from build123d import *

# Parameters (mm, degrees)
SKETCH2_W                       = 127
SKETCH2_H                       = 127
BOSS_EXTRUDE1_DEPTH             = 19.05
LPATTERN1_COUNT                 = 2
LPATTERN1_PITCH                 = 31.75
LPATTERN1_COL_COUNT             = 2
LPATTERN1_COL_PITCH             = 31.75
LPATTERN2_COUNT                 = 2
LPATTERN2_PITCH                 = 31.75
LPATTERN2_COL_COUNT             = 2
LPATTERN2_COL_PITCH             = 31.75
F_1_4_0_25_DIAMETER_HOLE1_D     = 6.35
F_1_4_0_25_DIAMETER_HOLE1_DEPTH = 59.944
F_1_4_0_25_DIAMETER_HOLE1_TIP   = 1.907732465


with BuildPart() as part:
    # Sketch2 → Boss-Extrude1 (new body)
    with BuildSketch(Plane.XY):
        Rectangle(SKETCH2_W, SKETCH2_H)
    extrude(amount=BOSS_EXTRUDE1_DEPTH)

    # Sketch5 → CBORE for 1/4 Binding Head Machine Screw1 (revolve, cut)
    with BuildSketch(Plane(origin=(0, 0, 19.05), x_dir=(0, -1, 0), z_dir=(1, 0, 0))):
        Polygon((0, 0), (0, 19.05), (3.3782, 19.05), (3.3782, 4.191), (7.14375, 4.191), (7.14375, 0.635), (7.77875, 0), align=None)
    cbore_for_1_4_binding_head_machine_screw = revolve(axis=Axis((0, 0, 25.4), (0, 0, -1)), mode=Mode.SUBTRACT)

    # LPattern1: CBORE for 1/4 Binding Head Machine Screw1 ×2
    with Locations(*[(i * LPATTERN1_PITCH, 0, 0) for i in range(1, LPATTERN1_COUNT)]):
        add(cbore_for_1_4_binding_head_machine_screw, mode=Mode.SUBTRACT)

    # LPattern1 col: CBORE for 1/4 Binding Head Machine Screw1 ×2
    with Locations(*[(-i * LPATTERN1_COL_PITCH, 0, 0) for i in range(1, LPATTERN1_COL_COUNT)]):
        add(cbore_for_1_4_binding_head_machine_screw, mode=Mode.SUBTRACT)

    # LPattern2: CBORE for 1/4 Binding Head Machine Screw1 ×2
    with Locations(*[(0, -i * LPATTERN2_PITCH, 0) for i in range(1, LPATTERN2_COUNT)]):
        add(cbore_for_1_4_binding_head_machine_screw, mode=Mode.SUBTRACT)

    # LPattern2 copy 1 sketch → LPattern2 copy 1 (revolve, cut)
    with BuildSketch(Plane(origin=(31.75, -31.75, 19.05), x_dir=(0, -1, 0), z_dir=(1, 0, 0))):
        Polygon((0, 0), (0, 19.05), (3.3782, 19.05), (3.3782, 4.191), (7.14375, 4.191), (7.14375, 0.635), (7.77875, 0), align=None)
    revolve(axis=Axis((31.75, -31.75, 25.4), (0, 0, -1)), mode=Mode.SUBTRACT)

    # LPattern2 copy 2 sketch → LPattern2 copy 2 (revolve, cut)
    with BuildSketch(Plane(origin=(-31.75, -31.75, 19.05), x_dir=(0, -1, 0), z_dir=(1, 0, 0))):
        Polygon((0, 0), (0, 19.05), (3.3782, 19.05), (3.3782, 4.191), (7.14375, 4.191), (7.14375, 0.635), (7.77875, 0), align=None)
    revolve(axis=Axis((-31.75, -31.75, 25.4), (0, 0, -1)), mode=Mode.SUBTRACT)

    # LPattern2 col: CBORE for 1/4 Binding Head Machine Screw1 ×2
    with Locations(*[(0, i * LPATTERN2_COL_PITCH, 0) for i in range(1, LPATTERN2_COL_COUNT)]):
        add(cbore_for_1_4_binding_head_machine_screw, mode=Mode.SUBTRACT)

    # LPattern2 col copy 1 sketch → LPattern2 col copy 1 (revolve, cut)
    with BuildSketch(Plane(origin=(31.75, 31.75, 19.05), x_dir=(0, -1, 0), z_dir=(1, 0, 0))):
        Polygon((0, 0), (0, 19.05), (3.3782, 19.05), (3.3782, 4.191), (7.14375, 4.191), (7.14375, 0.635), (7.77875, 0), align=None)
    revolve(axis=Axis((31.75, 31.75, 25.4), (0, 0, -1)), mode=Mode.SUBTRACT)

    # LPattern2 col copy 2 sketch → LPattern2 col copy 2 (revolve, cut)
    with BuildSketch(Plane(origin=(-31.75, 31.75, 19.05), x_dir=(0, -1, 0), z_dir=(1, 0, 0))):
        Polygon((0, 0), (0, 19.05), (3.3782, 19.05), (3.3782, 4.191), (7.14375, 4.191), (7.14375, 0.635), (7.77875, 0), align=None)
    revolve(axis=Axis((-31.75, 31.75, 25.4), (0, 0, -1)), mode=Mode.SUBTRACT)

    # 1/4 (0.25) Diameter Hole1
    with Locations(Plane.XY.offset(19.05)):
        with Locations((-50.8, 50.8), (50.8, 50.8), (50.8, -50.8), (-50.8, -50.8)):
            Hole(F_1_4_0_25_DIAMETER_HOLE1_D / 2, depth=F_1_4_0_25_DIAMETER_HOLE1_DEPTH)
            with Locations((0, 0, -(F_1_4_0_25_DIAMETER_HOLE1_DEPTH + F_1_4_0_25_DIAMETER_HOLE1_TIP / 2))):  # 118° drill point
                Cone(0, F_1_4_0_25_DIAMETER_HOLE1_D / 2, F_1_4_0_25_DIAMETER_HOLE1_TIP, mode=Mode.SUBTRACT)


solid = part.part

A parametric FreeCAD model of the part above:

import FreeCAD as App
import Part
import Sketcher
Q = App.Units.Quantity

doc = App.newDocument("Part")
body = doc.addObject("PartDesign::Body", "Body")

sketch1 = body.newObject("Sketcher::SketchObject", "Sketch")
sketch1.AttachmentSupport = (doc.getObject("XY_Plane"), [""])
sketch1.MapMode = "FlatFace"
sketch1.addGeometry([
    Part.LineSegment(App.Vector(-64, 64, 0), App.Vector(-64, -64, 0)),
    Part.LineSegment(App.Vector(-64, -64, 0), App.Vector(64, -64, 0)),
    Part.LineSegment(App.Vector(64, -64, 0), App.Vector(64, 64, 0)),
    Part.LineSegment(App.Vector(64, 64, 0), App.Vector(-64, 64, 0)),
], False)
sketch1.addConstraint([
    Sketcher.Constraint("Coincident", 0, 2, 1, 1),
    Sketcher.Constraint("Coincident", 1, 2, 2, 1),
    Sketcher.Constraint("Coincident", 2, 2, 3, 1),
    Sketcher.Constraint("Coincident", 3, 2, 0, 1),
    Sketcher.Constraint("Vertical", 0),
    Sketcher.Constraint("Horizontal", 1),
    Sketcher.Constraint("Vertical", 2),
    Sketcher.Constraint("Horizontal", 3),
    Sketcher.Constraint("Symmetric", 0, 2, 2, 2, -1, 1),
    Sketcher.Constraint("Equal", 3, 0),
    Sketcher.Constraint("DistanceX", 1, 1, 1, 2, Q("5 in")),
])
pad1 = body.newObject("PartDesign::Pad", "Pad")
pad1.Profile = sketch1
pad1.Length = Q("0.75 in")

sketch2 = body.newObject("Sketcher::SketchObject", "Sketch001")
sketch2.AttachmentSupport = (doc.getObject("YZ_Plane"), [""])
sketch2.MapMode = "FlatFace"
sketch2.addGeometry([
    Part.LineSegment(App.Vector(0, 0, 0), App.Vector(0, 19.1, 0)),
    Part.LineSegment(App.Vector(0, 19.1, 0), App.Vector(-7.8, 19.1, 0)),
    Part.LineSegment(App.Vector(-7.8, 19.1, 0), App.Vector(-7.1, 18.4, 0)),
    Part.LineSegment(App.Vector(-7.1, 18.4, 0), App.Vector(-7.1, 14.9, 0)),
    Part.LineSegment(App.Vector(-7.1, 14.9, 0), App.Vector(-3.4, 14.9, 0)),
    Part.LineSegment(App.Vector(-3.4, 14.9, 0), App.Vector(-3.4, 0, 0)),
    Part.LineSegment(App.Vector(-3.4, 0, 0), App.Vector(0, 0, 0)),
], False)
sketch2.addConstraint([
    Sketcher.Constraint("Coincident", 0, 2, 1, 1),
    Sketcher.Constraint("Coincident", 1, 2, 2, 1),
    Sketcher.Constraint("Coincident", 2, 2, 3, 1),
    Sketcher.Constraint("Coincident", 3, 2, 4, 1),
    Sketcher.Constraint("Coincident", 4, 2, 5, 1),
    Sketcher.Constraint("Coincident", 5, 2, 6, 1),
    Sketcher.Constraint("Coincident", 6, 2, 0, 1),
    Sketcher.Constraint("Vertical", 0),
    Sketcher.Constraint("Horizontal", 1),
    Sketcher.Constraint("Vertical", 3),
    Sketcher.Constraint("Horizontal", 4),
    Sketcher.Constraint("Vertical", 5),
    Sketcher.Constraint("Horizontal", 6),
    Sketcher.Constraint("Coincident", 6, 2, -1, 1),
    Sketcher.Constraint("Angle", 2, Q("-45 deg")),
    Sketcher.Constraint("DistanceY", 0, 1, 0, 2, Q("0.75 in")),
    Sketcher.Constraint("DistanceY", 3, 2, 3, 1, Q("0.14 in")),
    Sketcher.Constraint("DistanceX", 6, 1, 6, 2, Q("0.133 in")),
    Sketcher.Constraint("DistanceY", 5, 2, 5, 1, Q("0.585 in")),
    Sketcher.Constraint("DistanceX", 2, 2, -1, 1, Q("0.28125 in")),
])
groove = body.newObject("PartDesign::Groove", "Groove")
groove.Profile = sketch2
groove.ReferenceAxis = (sketch2, ["V_Axis"])
groove.Angle = 360
doc.recompute()

linearpattern = body.newObject("PartDesign::LinearPattern", "LinearPattern")
linearpattern.Originals = [groove]
linearpattern.Direction = (doc.getObject("X_Axis"), [""])
linearpattern.Mode = "offset"
linearpattern.Offset = Q("1.25 in")
linearpattern.Occurrences = 2
body.Tip = linearpattern
doc.recompute()

linearpattern2 = body.newObject("PartDesign::LinearPattern", "LinearPattern001")
linearpattern2.Originals = [groove]
linearpattern2.Direction = (doc.getObject("X_Axis"), [""])
linearpattern2.Mode = "offset"
linearpattern2.Offset = Q("1.25 in")
linearpattern2.Occurrences = 2
linearpattern2.Reversed = True
body.Tip = linearpattern2
doc.recompute()

linearpattern3 = body.newObject("PartDesign::LinearPattern", "LinearPattern002")
linearpattern3.Originals = [groove]
linearpattern3.Direction = (doc.getObject("Y_Axis"), [""])
linearpattern3.Mode = "offset"
linearpattern3.Offset = Q("1.25 in")
linearpattern3.Occurrences = 2
linearpattern3.Reversed = True
body.Tip = linearpattern3

sketch3 = body.newObject("Sketcher::SketchObject", "Sketch002")
sketch3.AttachmentSupport = (doc.getObject("YZ_Plane"), [""])
sketch3.MapMode = "FlatFace"
sketch3.AttachmentOffset = App.Placement(App.Vector(0, 0, 1.25 * 25.4), App.Rotation())
sketch3.addGeometry([
    Part.LineSegment(App.Vector(-31.8, 0, 0), App.Vector(-31.8, 19.1, 0)),
    Part.LineSegment(App.Vector(-31.8, 19.1, 0), App.Vector(-39.5, 19.1, 0)),
    Part.LineSegment(App.Vector(-39.5, 19.1, 0), App.Vector(-38.9, 18.4, 0)),
    Part.LineSegment(App.Vector(-38.9, 18.4, 0), App.Vector(-38.9, 14.9, 0)),
    Part.LineSegment(App.Vector(-38.9, 14.9, 0), App.Vector(-35.1, 14.9, 0)),
    Part.LineSegment(App.Vector(-35.1, 14.9, 0), App.Vector(-35.1, 0, 0)),
    Part.LineSegment(App.Vector(-35.1, 0, 0), App.Vector(-31.8, 0, 0)),
], False)
sketch3.addGeometry(Part.LineSegment(App.Vector(-31.8, 19.1, 0), App.Vector(-31.8, 0, 0)), True)
sketch3.addConstraint([
    Sketcher.Constraint("Coincident", 0, 2, 1, 1),
    Sketcher.Constraint("Coincident", 1, 2, 2, 1),
    Sketcher.Constraint("Coincident", 2, 2, 3, 1),
    Sketcher.Constraint("Coincident", 3, 2, 4, 1),
    Sketcher.Constraint("Coincident", 4, 2, 5, 1),
    Sketcher.Constraint("Coincident", 5, 2, 6, 1),
    Sketcher.Constraint("Coincident", 6, 2, 0, 1),
    Sketcher.Constraint("Vertical", 0),
    Sketcher.Constraint("Horizontal", 1),
    Sketcher.Constraint("Vertical", 3),
    Sketcher.Constraint("Horizontal", 4),
    Sketcher.Constraint("Vertical", 5),
    Sketcher.Constraint("Horizontal", 6),
    Sketcher.Constraint("Vertical", 7),
    Sketcher.Constraint("Coincident", 7, 1, 0, 2),
    Sketcher.Constraint("PointOnObject", 5, 2, -1),
    Sketcher.Constraint("PointOnObject", 7, 2, -1),
    Sketcher.Constraint("Angle", 2, Q("-45 deg")),
    Sketcher.Constraint("DistanceY", 0, 1, 0, 2, Q("0.75 in")),
    Sketcher.Constraint("DistanceY", 3, 2, 3, 1, Q("0.14 in")),
    Sketcher.Constraint("DistanceX", 6, 1, 6, 2, Q("0.133 in")),
    Sketcher.Constraint("DistanceY", 5, 2, 5, 1, Q("0.585 in")),
    Sketcher.Constraint("DistanceX", 0, 2, -1, 1, Q("1.25 in")),
    Sketcher.Constraint("DistanceX", 2, 2, -1, 1, Q("1.53125 in")),
])
groove2 = body.newObject("PartDesign::Groove", "Groove001")
groove2.Profile = sketch3
groove2.ReferenceAxis = (sketch3, ["Axis0"])
groove2.Angle = 360

sketch4 = body.newObject("Sketcher::SketchObject", "Sketch003")
sketch4.AttachmentSupport = (doc.getObject("YZ_Plane"), [""])
sketch4.MapMode = "FlatFace"
sketch4.AttachmentOffset = App.Placement(App.Vector(0, 0, -1.25 * 25.4), App.Rotation())
sketch4.addGeometry([
    Part.LineSegment(App.Vector(-31.8, 0, 0), App.Vector(-31.8, 19.1, 0)),
    Part.LineSegment(App.Vector(-31.8, 19.1, 0), App.Vector(-39.5, 19.1, 0)),
    Part.LineSegment(App.Vector(-39.5, 19.1, 0), App.Vector(-38.9, 18.4, 0)),
    Part.LineSegment(App.Vector(-38.9, 18.4, 0), App.Vector(-38.9, 14.9, 0)),
    Part.LineSegment(App.Vector(-38.9, 14.9, 0), App.Vector(-35.1, 14.9, 0)),
    Part.LineSegment(App.Vector(-35.1, 14.9, 0), App.Vector(-35.1, 0, 0)),
    Part.LineSegment(App.Vector(-35.1, 0, 0), App.Vector(-31.8, 0, 0)),
], False)
sketch4.addGeometry(Part.LineSegment(App.Vector(-31.8, 19.1, 0), App.Vector(-31.8, 0, 0)), True)
sketch4.addConstraint([
    Sketcher.Constraint("Coincident", 0, 2, 1, 1),
    Sketcher.Constraint("Coincident", 1, 2, 2, 1),
    Sketcher.Constraint("Coincident", 2, 2, 3, 1),
    Sketcher.Constraint("Coincident", 3, 2, 4, 1),
    Sketcher.Constraint("Coincident", 4, 2, 5, 1),
    Sketcher.Constraint("Coincident", 5, 2, 6, 1),
    Sketcher.Constraint("Coincident", 6, 2, 0, 1),
    Sketcher.Constraint("Vertical", 0),
    Sketcher.Constraint("Horizontal", 1),
    Sketcher.Constraint("Vertical", 3),
    Sketcher.Constraint("Horizontal", 4),
    Sketcher.Constraint("Vertical", 5),
    Sketcher.Constraint("Horizontal", 6),
    Sketcher.Constraint("Vertical", 7),
    Sketcher.Constraint("Coincident", 7, 1, 0, 2),
    Sketcher.Constraint("PointOnObject", 5, 2, -1),
    Sketcher.Constraint("PointOnObject", 7, 2, -1),
    Sketcher.Constraint("Angle", 2, Q("-45 deg")),
    Sketcher.Constraint("DistanceY", 0, 1, 0, 2, Q("0.75 in")),
    Sketcher.Constraint("DistanceY", 3, 2, 3, 1, Q("0.14 in")),
    Sketcher.Constraint("DistanceX", 6, 1, 6, 2, Q("0.133 in")),
    Sketcher.Constraint("DistanceY", 5, 2, 5, 1, Q("0.585 in")),
    Sketcher.Constraint("DistanceX", 0, 2, -1, 1, Q("1.25 in")),
    Sketcher.Constraint("DistanceX", 2, 2, -1, 1, Q("1.53125 in")),
])
groove3 = body.newObject("PartDesign::Groove", "Groove002")
groove3.Profile = sketch4
groove3.ReferenceAxis = (sketch4, ["Axis0"])
groove3.Angle = 360
doc.recompute()

linearpattern4 = body.newObject("PartDesign::LinearPattern", "LinearPattern003")
linearpattern4.Originals = [groove]
linearpattern4.Direction = (doc.getObject("Y_Axis"), [""])
linearpattern4.Mode = "offset"
linearpattern4.Offset = Q("1.25 in")
linearpattern4.Occurrences = 2
body.Tip = linearpattern4

sketch5 = body.newObject("Sketcher::SketchObject", "Sketch004")
sketch5.AttachmentSupport = (doc.getObject("YZ_Plane"), [""])
sketch5.MapMode = "FlatFace"
sketch5.AttachmentOffset = App.Placement(App.Vector(0, 0, 1.25 * 25.4), App.Rotation())
sketch5.addGeometry([
    Part.LineSegment(App.Vector(31.8, 0, 0), App.Vector(31.8, 19.1, 0)),
    Part.LineSegment(App.Vector(31.8, 19.1, 0), App.Vector(24, 19.1, 0)),
    Part.LineSegment(App.Vector(24, 19.1, 0), App.Vector(24.6, 18.4, 0)),
    Part.LineSegment(App.Vector(24.6, 18.4, 0), App.Vector(24.6, 14.9, 0)),
    Part.LineSegment(App.Vector(24.6, 14.9, 0), App.Vector(28.4, 14.9, 0)),
    Part.LineSegment(App.Vector(28.4, 14.9, 0), App.Vector(28.4, 0, 0)),
    Part.LineSegment(App.Vector(28.4, 0, 0), App.Vector(31.8, 0, 0)),
], False)
sketch5.addGeometry(Part.LineSegment(App.Vector(31.8, 19.1, 0), App.Vector(31.8, 0, 0)), True)
sketch5.addConstraint([
    Sketcher.Constraint("Coincident", 0, 2, 1, 1),
    Sketcher.Constraint("Coincident", 1, 2, 2, 1),
    Sketcher.Constraint("Coincident", 2, 2, 3, 1),
    Sketcher.Constraint("Coincident", 3, 2, 4, 1),
    Sketcher.Constraint("Coincident", 4, 2, 5, 1),
    Sketcher.Constraint("Coincident", 5, 2, 6, 1),
    Sketcher.Constraint("Coincident", 6, 2, 0, 1),
    Sketcher.Constraint("Vertical", 0),
    Sketcher.Constraint("Horizontal", 1),
    Sketcher.Constraint("Vertical", 3),
    Sketcher.Constraint("Horizontal", 4),
    Sketcher.Constraint("Vertical", 5),
    Sketcher.Constraint("Horizontal", 6),
    Sketcher.Constraint("Vertical", 7),
    Sketcher.Constraint("Coincident", 7, 1, 0, 2),
    Sketcher.Constraint("PointOnObject", 5, 2, -1),
    Sketcher.Constraint("PointOnObject", 7, 2, -1),
    Sketcher.Constraint("Angle", 2, Q("-45 deg")),
    Sketcher.Constraint("DistanceY", 0, 1, 0, 2, Q("0.75 in")),
    Sketcher.Constraint("DistanceY", 3, 2, 3, 1, Q("0.14 in")),
    Sketcher.Constraint("DistanceX", 6, 1, 6, 2, Q("0.133 in")),
    Sketcher.Constraint("DistanceY", 5, 2, 5, 1, Q("0.585 in")),
    Sketcher.Constraint("DistanceX", -1, 1, 0, 2, Q("1.25 in")),
    Sketcher.Constraint("DistanceX", -1, 1, 2, 2, Q("0.96875 in")),
])
groove4 = body.newObject("PartDesign::Groove", "Groove003")
groove4.Profile = sketch5
groove4.ReferenceAxis = (sketch5, ["Axis0"])
groove4.Angle = 360

sketch6 = body.newObject("Sketcher::SketchObject", "Sketch005")
sketch6.AttachmentSupport = (doc.getObject("YZ_Plane"), [""])
sketch6.MapMode = "FlatFace"
sketch6.AttachmentOffset = App.Placement(App.Vector(0, 0, -1.25 * 25.4), App.Rotation())
sketch6.addGeometry([
    Part.LineSegment(App.Vector(31.8, 0, 0), App.Vector(31.8, 19.1, 0)),
    Part.LineSegment(App.Vector(31.8, 19.1, 0), App.Vector(24, 19.1, 0)),
    Part.LineSegment(App.Vector(24, 19.1, 0), App.Vector(24.6, 18.4, 0)),
    Part.LineSegment(App.Vector(24.6, 18.4, 0), App.Vector(24.6, 14.9, 0)),
    Part.LineSegment(App.Vector(24.6, 14.9, 0), App.Vector(28.4, 14.9, 0)),
    Part.LineSegment(App.Vector(28.4, 14.9, 0), App.Vector(28.4, 0, 0)),
    Part.LineSegment(App.Vector(28.4, 0, 0), App.Vector(31.8, 0, 0)),
], False)
sketch6.addGeometry(Part.LineSegment(App.Vector(31.8, 19.1, 0), App.Vector(31.8, 0, 0)), True)
sketch6.addConstraint([
    Sketcher.Constraint("Coincident", 0, 2, 1, 1),
    Sketcher.Constraint("Coincident", 1, 2, 2, 1),
    Sketcher.Constraint("Coincident", 2, 2, 3, 1),
    Sketcher.Constraint("Coincident", 3, 2, 4, 1),
    Sketcher.Constraint("Coincident", 4, 2, 5, 1),
    Sketcher.Constraint("Coincident", 5, 2, 6, 1),
    Sketcher.Constraint("Coincident", 6, 2, 0, 1),
    Sketcher.Constraint("Vertical", 0),
    Sketcher.Constraint("Horizontal", 1),
    Sketcher.Constraint("Vertical", 3),
    Sketcher.Constraint("Horizontal", 4),
    Sketcher.Constraint("Vertical", 5),
    Sketcher.Constraint("Horizontal", 6),
    Sketcher.Constraint("Vertical", 7),
    Sketcher.Constraint("Coincident", 7, 1, 0, 2),
    Sketcher.Constraint("PointOnObject", 5, 2, -1),
    Sketcher.Constraint("PointOnObject", 7, 2, -1),
    Sketcher.Constraint("Angle", 2, Q("-45 deg")),
    Sketcher.Constraint("DistanceY", 0, 1, 0, 2, Q("0.75 in")),
    Sketcher.Constraint("DistanceY", 3, 2, 3, 1, Q("0.14 in")),
    Sketcher.Constraint("DistanceX", 6, 1, 6, 2, Q("0.133 in")),
    Sketcher.Constraint("DistanceY", 5, 2, 5, 1, Q("0.585 in")),
    Sketcher.Constraint("DistanceX", -1, 1, 0, 2, Q("1.25 in")),
    Sketcher.Constraint("DistanceX", -1, 1, 2, 2, Q("0.96875 in")),
])
groove5 = body.newObject("PartDesign::Groove", "Groove004")
groove5.Profile = sketch6
groove5.ReferenceAxis = (sketch6, ["Axis0"])
groove5.Angle = 360

sketch7 = body.newObject("Sketcher::SketchObject", "Sketch006")
sketch7.AttachmentSupport = (doc.getObject("XY_Plane"), [""])
sketch7.MapMode = "FlatFace"
sketch7.AttachmentOffset = App.Placement(App.Vector(0, 0, 0.75 * 25.4), App.Rotation())
sketch7.addGeometry([
    Part.Circle(App.Vector(-50.8, 50.8, 0), App.Vector(0, 0, 1), 3.2),
    Part.Circle(App.Vector(50.8, 50.8, 0), App.Vector(0, 0, 1), 3.2),
    Part.Circle(App.Vector(50.8, -50.8, 0), App.Vector(0, 0, 1), 3.2),
    Part.Circle(App.Vector(-50.8, -50.8, 0), App.Vector(0, 0, 1), 3.2),
], False)
sketch7.addConstraint([
    Sketcher.Constraint("Equal", 0, 1),
    Sketcher.Constraint("Equal", 1, 2),
    Sketcher.Constraint("Equal", 2, 3),
    Sketcher.Constraint("Symmetric", 0, 3, 2, 3, -1, 1),
    Sketcher.Constraint("Symmetric", 1, 3, 3, 3, -1, 1),
    Sketcher.Constraint("Symmetric", 0, 3, 1, 3, -2),
    Sketcher.Constraint("Diameter", 0, Q("0.25 in")),
    Sketcher.Constraint("DistanceX", 0, 3, -1, 1, Q("2 in")),
    Sketcher.Constraint("DistanceY", -1, 1, 0, 3, Q("2 in")),
])
doc.recompute()
hole = body.newObject("PartDesign::Hole", "Hole")
hole.Profile = sketch7
hole.ThreadType = "None"
hole.Diameter = Q("0.25 in")
hole.DepthType = "Dimension"
hole.Depth = Q("2.36 in")
hole.DrillPoint = "Angled"
hole.DrillPointAngle = 118

doc.recompute()
